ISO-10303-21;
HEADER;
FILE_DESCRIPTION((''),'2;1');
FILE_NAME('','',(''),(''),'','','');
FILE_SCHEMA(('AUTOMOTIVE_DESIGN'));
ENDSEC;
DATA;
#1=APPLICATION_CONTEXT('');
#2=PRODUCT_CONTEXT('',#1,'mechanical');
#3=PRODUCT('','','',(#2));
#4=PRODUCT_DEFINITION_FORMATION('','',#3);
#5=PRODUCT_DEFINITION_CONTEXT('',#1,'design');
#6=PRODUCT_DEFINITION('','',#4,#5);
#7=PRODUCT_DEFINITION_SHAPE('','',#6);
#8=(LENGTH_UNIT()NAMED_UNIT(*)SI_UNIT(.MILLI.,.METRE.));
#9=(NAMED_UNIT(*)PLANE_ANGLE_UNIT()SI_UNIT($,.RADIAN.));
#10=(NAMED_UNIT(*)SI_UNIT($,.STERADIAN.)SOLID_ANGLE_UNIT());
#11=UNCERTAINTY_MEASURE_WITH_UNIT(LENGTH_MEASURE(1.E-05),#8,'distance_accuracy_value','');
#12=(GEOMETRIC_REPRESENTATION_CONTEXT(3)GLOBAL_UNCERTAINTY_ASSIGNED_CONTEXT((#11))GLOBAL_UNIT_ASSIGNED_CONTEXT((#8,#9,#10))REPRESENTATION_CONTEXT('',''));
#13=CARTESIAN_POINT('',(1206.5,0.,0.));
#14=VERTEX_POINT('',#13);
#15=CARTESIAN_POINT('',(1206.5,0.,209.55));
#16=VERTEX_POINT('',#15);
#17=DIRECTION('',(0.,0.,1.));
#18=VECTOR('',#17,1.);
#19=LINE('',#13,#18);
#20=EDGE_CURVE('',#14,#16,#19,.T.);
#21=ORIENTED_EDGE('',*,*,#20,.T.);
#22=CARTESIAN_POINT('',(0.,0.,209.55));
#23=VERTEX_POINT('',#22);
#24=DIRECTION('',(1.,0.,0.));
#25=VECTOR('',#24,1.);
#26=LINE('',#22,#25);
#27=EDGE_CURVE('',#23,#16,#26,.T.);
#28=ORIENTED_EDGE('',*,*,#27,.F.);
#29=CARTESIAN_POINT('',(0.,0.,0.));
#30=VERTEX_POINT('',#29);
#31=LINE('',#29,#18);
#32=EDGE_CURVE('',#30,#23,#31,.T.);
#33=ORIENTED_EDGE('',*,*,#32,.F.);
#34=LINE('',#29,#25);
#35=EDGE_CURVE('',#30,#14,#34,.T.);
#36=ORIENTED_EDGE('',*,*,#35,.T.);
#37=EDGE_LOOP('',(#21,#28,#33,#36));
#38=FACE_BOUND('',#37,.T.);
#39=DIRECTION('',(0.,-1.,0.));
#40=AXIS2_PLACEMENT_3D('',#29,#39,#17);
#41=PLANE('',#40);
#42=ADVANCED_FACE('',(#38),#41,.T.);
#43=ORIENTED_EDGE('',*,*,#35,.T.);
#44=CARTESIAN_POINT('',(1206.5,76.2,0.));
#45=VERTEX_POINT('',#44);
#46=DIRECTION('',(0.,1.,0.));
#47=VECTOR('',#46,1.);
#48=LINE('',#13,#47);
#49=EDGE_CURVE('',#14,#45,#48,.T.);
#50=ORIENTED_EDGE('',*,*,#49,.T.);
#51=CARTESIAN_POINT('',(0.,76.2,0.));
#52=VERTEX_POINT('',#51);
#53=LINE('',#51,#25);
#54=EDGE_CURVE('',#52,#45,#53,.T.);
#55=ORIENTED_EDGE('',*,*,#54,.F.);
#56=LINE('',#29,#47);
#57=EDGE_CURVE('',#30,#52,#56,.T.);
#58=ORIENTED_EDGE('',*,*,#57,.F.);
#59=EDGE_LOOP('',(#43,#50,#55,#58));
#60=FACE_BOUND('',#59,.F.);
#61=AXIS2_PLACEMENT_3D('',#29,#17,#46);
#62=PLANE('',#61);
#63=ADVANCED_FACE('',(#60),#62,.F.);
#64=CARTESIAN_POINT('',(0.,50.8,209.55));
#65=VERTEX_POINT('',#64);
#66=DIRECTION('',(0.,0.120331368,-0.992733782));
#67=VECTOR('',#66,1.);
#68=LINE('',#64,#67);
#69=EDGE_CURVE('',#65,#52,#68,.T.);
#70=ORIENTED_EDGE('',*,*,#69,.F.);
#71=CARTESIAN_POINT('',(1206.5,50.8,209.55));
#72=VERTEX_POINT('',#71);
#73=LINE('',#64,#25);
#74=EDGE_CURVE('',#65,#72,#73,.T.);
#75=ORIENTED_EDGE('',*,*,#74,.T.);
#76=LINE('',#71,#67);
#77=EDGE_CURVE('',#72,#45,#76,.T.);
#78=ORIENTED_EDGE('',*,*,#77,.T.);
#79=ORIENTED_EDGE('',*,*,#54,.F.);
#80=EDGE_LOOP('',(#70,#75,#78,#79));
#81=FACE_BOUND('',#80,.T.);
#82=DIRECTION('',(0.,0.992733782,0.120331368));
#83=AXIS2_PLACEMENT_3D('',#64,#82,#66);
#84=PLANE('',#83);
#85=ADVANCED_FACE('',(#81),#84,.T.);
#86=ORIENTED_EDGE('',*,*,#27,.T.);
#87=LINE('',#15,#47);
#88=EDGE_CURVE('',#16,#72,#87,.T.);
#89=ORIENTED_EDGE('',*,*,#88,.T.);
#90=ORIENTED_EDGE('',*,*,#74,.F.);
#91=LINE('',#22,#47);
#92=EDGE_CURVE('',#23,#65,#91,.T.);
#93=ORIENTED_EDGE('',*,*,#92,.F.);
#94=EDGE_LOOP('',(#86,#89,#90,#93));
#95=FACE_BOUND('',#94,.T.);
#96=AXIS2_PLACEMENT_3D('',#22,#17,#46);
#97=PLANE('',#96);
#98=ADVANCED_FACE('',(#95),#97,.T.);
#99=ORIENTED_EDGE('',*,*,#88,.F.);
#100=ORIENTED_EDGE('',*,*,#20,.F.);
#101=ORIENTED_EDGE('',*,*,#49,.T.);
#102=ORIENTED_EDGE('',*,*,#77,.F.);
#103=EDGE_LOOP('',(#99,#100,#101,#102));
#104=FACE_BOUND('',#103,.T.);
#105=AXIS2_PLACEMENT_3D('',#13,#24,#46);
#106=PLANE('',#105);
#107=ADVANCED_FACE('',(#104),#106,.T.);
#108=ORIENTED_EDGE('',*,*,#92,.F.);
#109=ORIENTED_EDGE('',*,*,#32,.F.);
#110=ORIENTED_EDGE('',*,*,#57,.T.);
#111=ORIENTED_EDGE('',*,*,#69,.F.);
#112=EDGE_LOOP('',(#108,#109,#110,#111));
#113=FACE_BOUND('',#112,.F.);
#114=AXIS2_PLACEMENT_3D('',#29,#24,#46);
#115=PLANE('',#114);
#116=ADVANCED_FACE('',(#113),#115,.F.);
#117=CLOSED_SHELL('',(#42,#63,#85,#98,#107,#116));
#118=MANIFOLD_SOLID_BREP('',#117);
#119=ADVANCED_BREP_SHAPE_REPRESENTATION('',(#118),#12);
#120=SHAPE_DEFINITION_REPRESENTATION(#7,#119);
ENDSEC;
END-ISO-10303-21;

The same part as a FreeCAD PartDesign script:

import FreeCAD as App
import Part
import Sketcher
from FreeCAD import Vector
Q = App.Units.Quantity


def add_polygon(sketch, points):
    """Adds a closed chain of lines whose ends are joined by coincident constraints."""
    first, n = sketch.GeometryCount, len(points)
    for a, b in zip(points, points[1:] + points[:1]):
        sketch.addGeometry(Part.LineSegment(App.Vector(*a, 0), App.Vector(*b, 0)), False)
    for i in range(n):
        sketch.addConstraint(Sketcher.Constraint("Coincident", first + i, 2, first + (i + 1) % n, 1))

doc = App.newDocument("Part")
body = doc.addObject("PartDesign::Body", "Body")

# Sketch on YZ plane
sketch1 = doc.addObject("Sketcher::SketchObject", "Sketch")
body.addObject(sketch1)
sketch1.AttachmentSupport = (doc.YZ_Plane, [""])
sketch1.MapMode = "FlatFace"
add_polygon(sketch1, [(0, 210), (0, 0), (76, 0), (51, 210)])  # lines 0-3
sketch1.addConstraint([
    Sketcher.Constraint("Vertical", 0),
    Sketcher.Constraint("Horizontal", 1),
    Sketcher.Constraint("Horizontal", 3),
    Sketcher.Constraint("Coincident", 0, 2, -1, 1),
    Sketcher.Constraint("DistanceX", 1, 1, 1, 2, Q("3 in")),
    Sketcher.Constraint("DistanceX", 3, 2, 3, 1, Q("2 in")),
    Sketcher.Constraint("DistanceY", 0, 2, 0, 1, Q("8.25 in")),
])
pad1 = doc.addObject("PartDesign::Pad", "Pad")
body.addObject(pad1)
pad1.Profile = sketch1
pad1.Length = Q("47.5 in")

doc.recompute()
